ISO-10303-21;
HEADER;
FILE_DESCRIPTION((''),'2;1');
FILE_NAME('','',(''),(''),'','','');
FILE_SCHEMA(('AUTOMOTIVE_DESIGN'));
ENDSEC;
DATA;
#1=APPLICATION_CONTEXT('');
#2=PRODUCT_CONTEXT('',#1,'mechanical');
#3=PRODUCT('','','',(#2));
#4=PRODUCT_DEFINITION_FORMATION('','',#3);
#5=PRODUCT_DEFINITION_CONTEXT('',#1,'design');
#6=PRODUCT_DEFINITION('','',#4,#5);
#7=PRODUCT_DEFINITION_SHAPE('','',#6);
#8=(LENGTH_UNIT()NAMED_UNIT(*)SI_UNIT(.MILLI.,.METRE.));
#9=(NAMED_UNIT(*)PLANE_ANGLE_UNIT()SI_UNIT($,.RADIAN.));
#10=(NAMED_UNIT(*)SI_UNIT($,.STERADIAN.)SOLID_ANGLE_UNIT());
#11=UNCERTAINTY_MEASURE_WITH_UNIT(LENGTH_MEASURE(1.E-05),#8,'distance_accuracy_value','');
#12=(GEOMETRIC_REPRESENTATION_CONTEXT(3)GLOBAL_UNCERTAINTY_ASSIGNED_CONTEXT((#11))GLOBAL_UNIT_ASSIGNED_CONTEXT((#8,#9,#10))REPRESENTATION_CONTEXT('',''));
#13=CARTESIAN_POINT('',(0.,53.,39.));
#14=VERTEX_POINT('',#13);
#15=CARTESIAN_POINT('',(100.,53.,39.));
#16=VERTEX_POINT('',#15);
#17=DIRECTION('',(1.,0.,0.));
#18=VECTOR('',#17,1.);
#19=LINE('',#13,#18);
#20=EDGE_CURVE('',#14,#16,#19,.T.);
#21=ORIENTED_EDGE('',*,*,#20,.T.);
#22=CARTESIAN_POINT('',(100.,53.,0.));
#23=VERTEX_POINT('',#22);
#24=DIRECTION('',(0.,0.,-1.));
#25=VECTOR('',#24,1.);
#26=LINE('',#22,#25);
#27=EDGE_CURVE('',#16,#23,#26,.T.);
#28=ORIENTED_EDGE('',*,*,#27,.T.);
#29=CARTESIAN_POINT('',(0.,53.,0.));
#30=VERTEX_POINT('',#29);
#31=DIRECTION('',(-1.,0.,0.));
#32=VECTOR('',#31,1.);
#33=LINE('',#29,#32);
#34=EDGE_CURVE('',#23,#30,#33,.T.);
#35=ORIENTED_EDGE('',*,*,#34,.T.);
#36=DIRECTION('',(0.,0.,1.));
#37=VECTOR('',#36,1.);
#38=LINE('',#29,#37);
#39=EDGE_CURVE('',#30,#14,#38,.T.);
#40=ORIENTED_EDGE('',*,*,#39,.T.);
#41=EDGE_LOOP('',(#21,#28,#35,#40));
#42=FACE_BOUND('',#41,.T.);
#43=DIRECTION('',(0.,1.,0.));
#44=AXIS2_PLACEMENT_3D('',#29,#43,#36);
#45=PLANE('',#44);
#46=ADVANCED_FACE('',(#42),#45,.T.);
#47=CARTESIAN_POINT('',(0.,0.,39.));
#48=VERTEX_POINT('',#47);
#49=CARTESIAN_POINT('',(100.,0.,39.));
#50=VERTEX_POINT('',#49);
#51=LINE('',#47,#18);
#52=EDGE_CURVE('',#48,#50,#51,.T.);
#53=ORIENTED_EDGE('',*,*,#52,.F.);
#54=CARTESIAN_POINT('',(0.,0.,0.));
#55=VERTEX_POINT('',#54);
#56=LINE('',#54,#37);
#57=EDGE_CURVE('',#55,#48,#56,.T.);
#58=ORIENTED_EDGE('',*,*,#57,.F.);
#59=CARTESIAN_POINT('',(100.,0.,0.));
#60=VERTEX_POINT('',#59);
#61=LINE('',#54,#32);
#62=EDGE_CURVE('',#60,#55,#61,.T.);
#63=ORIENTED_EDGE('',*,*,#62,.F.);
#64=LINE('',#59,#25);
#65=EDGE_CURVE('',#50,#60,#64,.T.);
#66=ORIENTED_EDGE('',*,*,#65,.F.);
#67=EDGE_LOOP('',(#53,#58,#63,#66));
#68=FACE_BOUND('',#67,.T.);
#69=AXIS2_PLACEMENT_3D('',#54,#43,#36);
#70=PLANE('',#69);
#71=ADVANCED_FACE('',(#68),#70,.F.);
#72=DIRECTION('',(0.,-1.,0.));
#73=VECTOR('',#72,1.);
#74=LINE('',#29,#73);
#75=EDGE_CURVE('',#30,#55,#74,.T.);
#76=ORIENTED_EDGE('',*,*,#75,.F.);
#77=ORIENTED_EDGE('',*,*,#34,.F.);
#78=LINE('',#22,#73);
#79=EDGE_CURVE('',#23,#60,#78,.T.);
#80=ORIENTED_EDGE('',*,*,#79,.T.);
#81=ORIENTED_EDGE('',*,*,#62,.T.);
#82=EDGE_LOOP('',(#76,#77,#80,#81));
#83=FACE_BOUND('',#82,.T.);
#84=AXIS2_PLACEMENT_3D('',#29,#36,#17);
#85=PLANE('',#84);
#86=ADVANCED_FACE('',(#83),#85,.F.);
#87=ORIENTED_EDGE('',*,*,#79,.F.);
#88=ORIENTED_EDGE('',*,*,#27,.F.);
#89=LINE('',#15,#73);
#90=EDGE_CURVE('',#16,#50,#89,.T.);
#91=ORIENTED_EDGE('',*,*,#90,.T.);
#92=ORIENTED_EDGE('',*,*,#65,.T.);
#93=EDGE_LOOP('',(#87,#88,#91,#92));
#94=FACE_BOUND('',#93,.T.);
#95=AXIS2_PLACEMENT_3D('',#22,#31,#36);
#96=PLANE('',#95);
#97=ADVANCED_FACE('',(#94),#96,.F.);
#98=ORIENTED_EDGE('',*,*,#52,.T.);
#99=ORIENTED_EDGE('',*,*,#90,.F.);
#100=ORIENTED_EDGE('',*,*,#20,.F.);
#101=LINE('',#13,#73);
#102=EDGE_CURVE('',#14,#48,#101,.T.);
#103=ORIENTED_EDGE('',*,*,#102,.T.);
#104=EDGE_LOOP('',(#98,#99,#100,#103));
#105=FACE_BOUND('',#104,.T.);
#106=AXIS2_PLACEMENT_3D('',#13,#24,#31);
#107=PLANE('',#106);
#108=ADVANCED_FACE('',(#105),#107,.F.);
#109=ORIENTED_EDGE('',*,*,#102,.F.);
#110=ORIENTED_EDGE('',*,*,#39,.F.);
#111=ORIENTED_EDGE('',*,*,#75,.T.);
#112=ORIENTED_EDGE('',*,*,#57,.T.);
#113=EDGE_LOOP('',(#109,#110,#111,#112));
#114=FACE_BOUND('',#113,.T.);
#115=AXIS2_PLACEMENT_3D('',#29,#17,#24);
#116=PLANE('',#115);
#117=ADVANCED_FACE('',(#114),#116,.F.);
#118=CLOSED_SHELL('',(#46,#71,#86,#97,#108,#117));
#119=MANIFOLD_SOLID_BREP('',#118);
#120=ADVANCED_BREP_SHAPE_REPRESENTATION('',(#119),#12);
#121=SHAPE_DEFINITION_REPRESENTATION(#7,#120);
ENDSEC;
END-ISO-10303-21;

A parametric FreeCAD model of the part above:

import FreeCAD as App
import Part
import Sketcher
from FreeCAD import Vector

doc = App.newDocument("Part")
body = doc.addObject("PartDesign::Body", "Body")

# Sketch on XZ plane
sketch1 = body.newObject("Sketcher::SketchObject", "Sketch")
sketch1.AttachmentSupport = (doc.getObject("XZ_Plane"), [""])
sketch1.MapMode = "FlatFace"
sketch1.addGeometry(Part.LineSegment(Vector(0, 0, 0), Vector(0, 39, 0)), False)
sketch1.addGeometry(Part.LineSegment(Vector(0, 39, 0), Vector(100, 39, 0)), False)
sketch1.addGeometry(Part.LineSegment(Vector(100, 39, 0), Vector(100, 0, 0)), False)
sketch1.addGeometry(Part.LineSegment(Vector(100, 0, 0), Vector(0, 0, 0)), False)
sketch1.addConstraint(Sketcher.Constraint("Coincident", 0, 2, 1, 1))
sketch1.addConstraint(Sketcher.Constraint("Coincident", 1, 2, 2, 1))
sketch1.addConstraint(Sketcher.Constraint("Coincident", 2, 2, 3, 1))
sketch1.addConstraint(Sketcher.Constraint("Coincident", 3, 2, 0, 1))
sketch1.addConstraint(Sketcher.Constraint("Vertical", 0))
sketch1.addConstraint(Sketcher.Constraint("Horizontal", 1))
sketch1.addConstraint(Sketcher.Constraint("Vertical", 2))
sketch1.addConstraint(Sketcher.Constraint("Horizontal", 3))
sketch1.addConstraint(Sketcher.Constraint("Coincident", 3, 2, -1, 1))
sketch1.addConstraint(Sketcher.Constraint("DistanceX", 1, 1, 1, 2, 100.0))
sketch1.addConstraint(Sketcher.Constraint("DistanceY", 0, 1, 0, 2, 39.0))
pad1 = body.newObject("PartDesign::Pad", "Pad")
pad1.Profile = sketch1
pad1.Length = 53
pad1.Reversed = True

doc.recompute()
